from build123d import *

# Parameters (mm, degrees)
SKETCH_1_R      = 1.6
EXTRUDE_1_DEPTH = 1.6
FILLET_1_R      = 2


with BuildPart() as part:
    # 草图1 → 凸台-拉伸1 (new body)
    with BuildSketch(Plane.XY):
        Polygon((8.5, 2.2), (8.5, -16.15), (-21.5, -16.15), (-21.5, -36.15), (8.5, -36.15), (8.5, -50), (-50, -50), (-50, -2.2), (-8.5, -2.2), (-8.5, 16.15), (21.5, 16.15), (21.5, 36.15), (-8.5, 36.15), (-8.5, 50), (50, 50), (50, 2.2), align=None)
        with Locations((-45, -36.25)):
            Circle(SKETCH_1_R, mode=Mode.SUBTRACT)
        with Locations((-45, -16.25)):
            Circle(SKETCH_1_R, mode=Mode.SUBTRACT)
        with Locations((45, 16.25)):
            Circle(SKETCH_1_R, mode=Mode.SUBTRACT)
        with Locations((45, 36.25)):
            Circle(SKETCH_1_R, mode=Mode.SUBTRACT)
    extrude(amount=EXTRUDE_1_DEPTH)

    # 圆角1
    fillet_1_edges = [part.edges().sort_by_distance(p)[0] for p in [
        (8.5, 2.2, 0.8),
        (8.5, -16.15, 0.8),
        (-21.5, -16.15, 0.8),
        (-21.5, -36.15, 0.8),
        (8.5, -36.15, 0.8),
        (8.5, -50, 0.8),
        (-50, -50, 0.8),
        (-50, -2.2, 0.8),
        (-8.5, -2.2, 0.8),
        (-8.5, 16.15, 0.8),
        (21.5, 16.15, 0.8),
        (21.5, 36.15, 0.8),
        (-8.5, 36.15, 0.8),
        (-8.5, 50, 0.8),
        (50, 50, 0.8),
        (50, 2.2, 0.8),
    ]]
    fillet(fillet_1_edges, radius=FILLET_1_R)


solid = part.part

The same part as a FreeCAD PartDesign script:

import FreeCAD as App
import Part
import Sketcher

V = App.Vector


def edges_at(feature, points):
    """Names of the edges that pass closest to the given points."""
    edges = feature.Shape.Edges
    near = lambda p: min(range(len(edges)), key=lambda i: edges[i].distToShape(Part.Vertex(*p))[0])
    return sorted({f"Edge{near(p) + 1}" for p in points})

doc = App.newDocument("Part")
params = doc.addObject("Spreadsheet::Sheet", "Params")
for row, (alias, value) in enumerate([
    ("sketch1_diameter", "3.2 mm"),
    ("sketch1_width", "30 mm"),
    ("sketch1_height", "20 mm"),
    ("sketch1_width2", "41.5 mm"),
    ("sketch1_width3", "58.5 mm"),
    ("pad1_length", "1.6 mm"),
    ("fillet_radius", "2 mm"),
], start=1):
    params.set(f"A{row}", alias)
    params.set(f"B{row}", "=" + value)
    params.setAlias(f"B{row}", alias)

body = doc.addObject("PartDesign::Body", "Body")

# Sketch on XY plane
sketch1 = body.newObject("Sketcher::SketchObject", "Sketch")
sketch1.AttachmentSupport = (doc.getObject("XY_Plane"), [""])
sketch1.MapMode = "FlatFace"
sketch1.addGeometry([
    Part.LineSegment(V(8.5, -16.1, 0), V(8.5, 2.2, 0)),  # 0
    Part.LineSegment(V(8.5, 2.2, 0), V(50, 2.2, 0)),  # 1
    Part.LineSegment(V(50, 2.2, 0), V(50, 50, 0)),  # 2
    Part.LineSegment(V(50, 50, 0), V(-8.5, 50, 0)),  # 3
    Part.LineSegment(V(-8.5, 50, 0), V(-8.5, 36.1, 0)),  # 4
    Part.LineSegment(V(-8.5, 36.1, 0), V(21.5, 36.1, 0)),  # 5
    Part.LineSegment(V(21.5, 36.1, 0), V(21.5, 16.1, 0)),  # 6
    Part.LineSegment(V(21.5, 16.1, 0), V(-8.5, 16.1, 0)),  # 7
    Part.LineSegment(V(-8.5, 16.1, 0), V(-8.5, -2.2, 0)),  # 8
    Part.LineSegment(V(-8.5, -2.2, 0), V(-50, -2.2, 0)),  # 9
    Part.LineSegment(V(-50, -2.2, 0), V(-50, -50, 0)),  # 10
    Part.LineSegment(V(-50, -50, 0), V(8.5, -50, 0)),  # 11
    Part.LineSegment(V(8.5, -50, 0), V(8.5, -36.1, 0)),  # 12
    Part.LineSegment(V(8.5, -36.1, 0), V(-21.5, -36.1, 0)),  # 13
    Part.LineSegment(V(-21.5, -36.1, 0), V(-21.5, -16.1, 0)),  # 14
    Part.LineSegment(V(-21.5, -16.1, 0), V(8.5, -16.1, 0)),  # 15
    Part.Circle(V(-45, -36.2, 0), V(0, 0, 1), 1.6),  # 16
    Part.Circle(V(-45, -16.2, 0), V(0, 0, 1), 1.6),  # 17
    Part.Circle(V(45, 16.2, 0), V(0, 0, 1), 1.6),  # 18
    Part.Circle(V(45, 36.2, 0), V(0, 0, 1), 1.6),  # 19
], False)
sketch1.addConstraint([
    Sketcher.Constraint("Coincident", 0, 2, 1, 1),
    Sketcher.Constraint("Coincident", 1, 2, 2, 1),
    Sketcher.Constraint("Coincident", 2, 2, 3, 1),
    Sketcher.Constraint("Coincident", 3, 2, 4, 1),
    Sketcher.Constraint("Coincident", 4, 2, 5, 1),
    Sketcher.Constraint("Coincident", 5, 2, 6, 1),
    Sketcher.Constraint("Coincident", 6, 2, 7, 1),
    Sketcher.Constraint("Coincident", 7, 2, 8, 1),
    Sketcher.Constraint("Coincident", 8, 2, 9, 1),
    Sketcher.Constraint("Coincident", 9, 2, 10, 1),
    Sketcher.Constraint("Coincident", 10, 2, 11, 1),
    Sketcher.Constraint("Coincident", 11, 2, 12, 1),
    Sketcher.Constraint("Coincident", 12, 2, 13, 1),
    Sketcher.Constraint("Coincident", 13, 2, 14, 1),
    Sketcher.Constraint("Coincident", 14, 2, 15, 1),
    Sketcher.Constraint("Coincident", 15, 2, 0, 1),
    Sketcher.Constraint("Vertical", 0),
    Sketcher.Constraint("Horizontal", 1),
    Sketcher.Constraint("Vertical", 2),
    Sketcher.Constraint("Horizontal", 3),
    Sketcher.Constraint("Vertical", 4),
    Sketcher.Constraint("Horizontal", 5),
    Sketcher.Constraint("Vertical", 6),
    Sketcher.Constraint("Horizontal", 7),
    Sketcher.Constraint("Vertical", 8),
    Sketcher.Constraint("Horizontal", 9),
    Sketcher.Constraint("Vertical", 10),
    Sketcher.Constraint("Horizontal", 11),
    Sketcher.Constraint("Vertical", 12),
    Sketcher.Constraint("Horizontal", 13),
    Sketcher.Constraint("Vertical", 14),
    Sketcher.Constraint("Horizontal", 15),
    Sketcher.Constraint("Equal", 16, 17),
    Sketcher.Constraint("Equal", 17, 18),
    Sketcher.Constraint("Equal", 18, 19),
    Sketcher.Constraint("Symmetric", 17, 3, 18, 3, -1, 1),
    Sketcher.Constraint("Symmetric", 16, 3, 19, 3, -1, 1),
    Sketcher.Constraint("Symmetric", 0, 2, 8, 2, -1, 1),
    Sketcher.Constraint("Symmetric", 2, 2, 10, 2, -1, 1),
    Sketcher.Constraint("Symmetric", 4, 2, 12, 2, -1, 1),
    Sketcher.Constraint("Symmetric", 6, 2, 14, 2, -1, 1),
    Sketcher.Constraint("Vertical", 16, 3, 17, 3),
    Sketcher.Constraint("Vertical", 4, 2, 7, 2),
    Sketcher.Constraint("Diameter", 16, 3.2),
    Sketcher.Constraint("DistanceX", 5, 1, 5, 2, 30.0),
    Sketcher.Constraint("DistanceY", 6, 2, 6, 1, 20.0),
    Sketcher.Constraint("DistanceX", 1, 1, 1, 2, 41.5),
    Sketcher.Constraint("DistanceX", 3, 2, 3, 1, 58.5),
    Sketcher.Constraint("DistanceY", 2, 1, 2, 2, 47.8),
    Sketcher.Constraint("DistanceX", 16, 3, -1, 1, 45.0),
    Sketcher.Constraint("DistanceY", -1, 1, 2, 2, 50.0),
    Sketcher.Constraint("DistanceY", 16, 3, 17, 3, 20.0),
    Sketcher.Constraint("DistanceY", 0, 1, 0, 2, 18.35),
    Sketcher.Constraint("DistanceY", 17, 3, 18, 3, 32.5),
])
sketch1.setExpression("Constraints[43]", "Params.sketch1_diameter")
sketch1.setExpression("Constraints[44]", "Params.sketch1_width")
sketch1.setExpression("Constraints[45]", "Params.sketch1_height")
sketch1.setExpression("Constraints[46]", "Params.sketch1_width2")
sketch1.setExpression("Constraints[47]", "Params.sketch1_width3")
pad1 = body.newObject("PartDesign::Pad", "Pad")
pad1.Profile = sketch1
pad1.setExpression("Length", "Params.pad1_length")
doc.recompute()

fillet = body.newObject("PartDesign::Fillet", "Fillet")
fillet.Base = (pad1, edges_at(pad1, [
    (8.5, 2.2, 0.8),
    (8.5, -16.15, 0.8),
    (-21.5, -16.15, 0.8),
    (-21.5, -36.15, 0.8),
    (8.5, -36.15, 0.8),
    (8.5, -50, 0.8),
    (-50, -50, 0.8),
    (-50, -2.2, 0.8),
    (-8.5, -2.2, 0.8),
    (-8.5, 16.15, 0.8),
    (21.5, 16.15, 0.8),
    (21.5, 36.15, 0.8),
    (-8.5, 36.15, 0.8),
    (-8.5, 50, 0.8),
    (50, 50, 0.8),
    (50, 2.2, 0.8),
]))
fillet.setExpression("Radius", "Params.fillet_radius")

doc.recompute()
